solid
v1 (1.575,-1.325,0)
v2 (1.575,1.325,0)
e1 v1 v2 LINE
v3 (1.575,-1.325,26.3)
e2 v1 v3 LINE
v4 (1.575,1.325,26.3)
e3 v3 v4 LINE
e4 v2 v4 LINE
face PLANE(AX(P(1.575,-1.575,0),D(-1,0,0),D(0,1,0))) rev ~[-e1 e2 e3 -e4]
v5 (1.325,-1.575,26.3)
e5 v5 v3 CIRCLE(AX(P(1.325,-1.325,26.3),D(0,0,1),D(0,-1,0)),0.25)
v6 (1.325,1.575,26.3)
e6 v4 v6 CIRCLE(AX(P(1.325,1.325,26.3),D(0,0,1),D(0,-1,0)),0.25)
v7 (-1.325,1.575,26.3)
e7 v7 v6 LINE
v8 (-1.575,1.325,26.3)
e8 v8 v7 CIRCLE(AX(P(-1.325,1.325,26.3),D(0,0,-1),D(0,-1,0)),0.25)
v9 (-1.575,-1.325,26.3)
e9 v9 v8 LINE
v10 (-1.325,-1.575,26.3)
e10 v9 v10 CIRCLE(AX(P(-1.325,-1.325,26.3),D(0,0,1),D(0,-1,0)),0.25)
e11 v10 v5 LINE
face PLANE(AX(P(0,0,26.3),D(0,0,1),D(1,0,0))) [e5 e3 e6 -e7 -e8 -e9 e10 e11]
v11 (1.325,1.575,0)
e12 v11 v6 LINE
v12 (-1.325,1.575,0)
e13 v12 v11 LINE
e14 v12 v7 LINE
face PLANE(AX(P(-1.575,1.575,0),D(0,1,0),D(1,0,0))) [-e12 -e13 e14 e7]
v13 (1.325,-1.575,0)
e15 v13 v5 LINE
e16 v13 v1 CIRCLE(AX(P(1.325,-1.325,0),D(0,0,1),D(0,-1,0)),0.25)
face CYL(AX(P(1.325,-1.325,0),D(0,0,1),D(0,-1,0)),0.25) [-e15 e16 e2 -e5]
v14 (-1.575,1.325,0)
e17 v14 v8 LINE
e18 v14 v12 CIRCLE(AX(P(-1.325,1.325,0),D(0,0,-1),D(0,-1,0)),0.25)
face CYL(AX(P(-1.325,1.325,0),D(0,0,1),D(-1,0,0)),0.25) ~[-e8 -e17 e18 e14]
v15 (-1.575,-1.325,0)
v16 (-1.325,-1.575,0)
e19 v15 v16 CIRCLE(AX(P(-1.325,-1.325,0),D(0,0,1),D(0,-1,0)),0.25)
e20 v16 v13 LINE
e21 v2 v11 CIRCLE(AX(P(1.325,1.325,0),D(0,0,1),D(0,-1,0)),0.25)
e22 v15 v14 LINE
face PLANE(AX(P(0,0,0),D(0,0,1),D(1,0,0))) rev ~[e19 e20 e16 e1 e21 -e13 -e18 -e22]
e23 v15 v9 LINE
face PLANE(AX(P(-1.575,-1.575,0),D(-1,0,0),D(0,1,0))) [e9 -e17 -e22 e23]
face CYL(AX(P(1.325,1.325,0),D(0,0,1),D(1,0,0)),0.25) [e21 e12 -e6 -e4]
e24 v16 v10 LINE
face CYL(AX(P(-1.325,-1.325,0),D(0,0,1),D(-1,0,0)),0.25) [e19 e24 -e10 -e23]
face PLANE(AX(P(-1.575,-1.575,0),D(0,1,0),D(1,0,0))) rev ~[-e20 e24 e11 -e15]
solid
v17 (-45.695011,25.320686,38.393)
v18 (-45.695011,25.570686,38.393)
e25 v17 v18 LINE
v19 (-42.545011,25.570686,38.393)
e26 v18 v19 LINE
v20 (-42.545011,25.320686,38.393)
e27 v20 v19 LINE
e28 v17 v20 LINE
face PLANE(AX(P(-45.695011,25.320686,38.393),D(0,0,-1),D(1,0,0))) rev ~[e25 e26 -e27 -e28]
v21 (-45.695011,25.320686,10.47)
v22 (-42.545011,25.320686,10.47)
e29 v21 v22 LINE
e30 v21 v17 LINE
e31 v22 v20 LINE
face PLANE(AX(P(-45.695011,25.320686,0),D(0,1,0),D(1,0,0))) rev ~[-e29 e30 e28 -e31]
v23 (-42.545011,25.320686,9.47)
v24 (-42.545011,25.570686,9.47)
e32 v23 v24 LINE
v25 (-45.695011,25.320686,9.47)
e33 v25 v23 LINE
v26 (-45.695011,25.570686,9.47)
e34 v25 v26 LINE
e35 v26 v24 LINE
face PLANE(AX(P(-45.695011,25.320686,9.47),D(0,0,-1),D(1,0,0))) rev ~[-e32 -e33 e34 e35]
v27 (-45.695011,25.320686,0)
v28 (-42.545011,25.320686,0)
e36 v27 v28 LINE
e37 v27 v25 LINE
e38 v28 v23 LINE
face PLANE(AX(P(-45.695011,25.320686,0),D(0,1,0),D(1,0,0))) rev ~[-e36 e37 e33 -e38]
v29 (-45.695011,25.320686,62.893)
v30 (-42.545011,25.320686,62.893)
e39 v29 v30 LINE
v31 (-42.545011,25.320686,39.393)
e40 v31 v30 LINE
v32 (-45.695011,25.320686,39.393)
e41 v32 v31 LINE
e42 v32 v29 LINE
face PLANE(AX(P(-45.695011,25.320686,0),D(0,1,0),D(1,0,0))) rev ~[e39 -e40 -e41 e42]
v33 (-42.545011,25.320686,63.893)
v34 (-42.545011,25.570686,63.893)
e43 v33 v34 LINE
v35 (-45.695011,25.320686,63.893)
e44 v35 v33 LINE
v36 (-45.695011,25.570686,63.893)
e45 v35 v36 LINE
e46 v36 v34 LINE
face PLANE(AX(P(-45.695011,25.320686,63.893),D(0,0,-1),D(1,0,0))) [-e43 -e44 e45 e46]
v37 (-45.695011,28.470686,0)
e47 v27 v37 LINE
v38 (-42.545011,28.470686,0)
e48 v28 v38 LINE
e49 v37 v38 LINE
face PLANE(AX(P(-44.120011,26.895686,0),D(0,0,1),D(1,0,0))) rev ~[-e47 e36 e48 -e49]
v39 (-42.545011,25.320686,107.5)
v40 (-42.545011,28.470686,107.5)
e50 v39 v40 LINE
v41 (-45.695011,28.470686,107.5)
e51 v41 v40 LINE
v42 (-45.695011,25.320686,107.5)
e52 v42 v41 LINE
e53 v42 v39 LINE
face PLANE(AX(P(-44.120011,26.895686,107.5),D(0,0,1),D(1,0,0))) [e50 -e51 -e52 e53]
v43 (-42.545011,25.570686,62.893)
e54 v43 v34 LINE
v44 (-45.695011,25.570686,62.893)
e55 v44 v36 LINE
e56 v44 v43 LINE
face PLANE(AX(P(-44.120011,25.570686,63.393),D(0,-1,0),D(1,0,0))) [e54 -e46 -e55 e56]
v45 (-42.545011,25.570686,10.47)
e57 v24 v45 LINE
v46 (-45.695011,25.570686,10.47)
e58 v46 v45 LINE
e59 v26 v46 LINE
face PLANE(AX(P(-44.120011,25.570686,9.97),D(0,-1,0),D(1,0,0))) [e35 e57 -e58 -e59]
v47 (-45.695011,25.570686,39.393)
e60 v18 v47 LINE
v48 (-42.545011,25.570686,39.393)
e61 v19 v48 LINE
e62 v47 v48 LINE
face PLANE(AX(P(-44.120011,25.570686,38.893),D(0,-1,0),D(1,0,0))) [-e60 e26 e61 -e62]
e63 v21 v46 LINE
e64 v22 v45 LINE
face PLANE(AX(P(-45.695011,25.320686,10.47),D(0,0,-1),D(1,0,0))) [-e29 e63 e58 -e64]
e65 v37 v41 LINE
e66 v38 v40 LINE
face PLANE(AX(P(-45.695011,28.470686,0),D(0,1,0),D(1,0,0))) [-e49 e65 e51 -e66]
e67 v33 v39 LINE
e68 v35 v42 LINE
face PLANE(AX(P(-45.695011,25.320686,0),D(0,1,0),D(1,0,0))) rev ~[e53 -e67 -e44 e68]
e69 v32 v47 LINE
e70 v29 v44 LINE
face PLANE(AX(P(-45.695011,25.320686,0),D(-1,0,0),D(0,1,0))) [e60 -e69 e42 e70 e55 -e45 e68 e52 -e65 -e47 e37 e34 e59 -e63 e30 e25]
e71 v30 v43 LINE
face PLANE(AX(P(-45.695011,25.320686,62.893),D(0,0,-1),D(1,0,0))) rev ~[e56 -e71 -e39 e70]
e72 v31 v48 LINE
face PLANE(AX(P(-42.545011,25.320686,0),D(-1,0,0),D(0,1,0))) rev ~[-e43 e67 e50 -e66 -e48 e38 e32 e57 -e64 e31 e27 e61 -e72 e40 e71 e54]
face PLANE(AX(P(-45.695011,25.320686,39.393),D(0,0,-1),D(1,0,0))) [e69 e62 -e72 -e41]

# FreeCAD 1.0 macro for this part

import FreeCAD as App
import Part
import Sketcher

V = App.Vector


def edges_at(feature, points):
    """Names of the edges that pass closest to the given points."""
    edges = feature.Shape.Edges
    near = lambda p: min(range(len(edges)), key=lambda i: edges[i].distToShape(Part.Vertex(*p))[0])
    return sorted({f"Edge{near(p) + 1}" for p in points})


def add_polygon(sketch, points):
    """Adds a closed chain of lines whose ends are joined by coincident constraints."""
    first, n = sketch.GeometryCount, len(points)
    for a, b in zip(points, points[1:] + points[:1]):
        sketch.addGeometry(Part.LineSegment(App.Vector(*a, 0), App.Vector(*b, 0)), False)
    for i in range(n):
        sketch.addConstraint(Sketcher.Constraint("Coincident", first + i, 2, first + (i + 1) % n, 1))

doc = App.newDocument("Part")
body = doc.addObject("PartDesign::Body", "Body")

sketch1 = body.newObject("Sketcher::SketchObject", "Sketch")
sketch1.AttachmentSupport = (doc.getObject("XY_Plane"), [""])
sketch1.MapMode = "FlatFace"
add_polygon(sketch1, [(-1.6, 1.6), (-1.6, -1.6), (1.6, -1.6), (1.6, 1.6)])
sketch1.addConstraint(Sketcher.Constraint("Vertical", 0))
sketch1.addConstraint(Sketcher.Constraint("Horizontal", 1))
sketch1.addConstraint(Sketcher.Constraint("Vertical", 2))
sketch1.addConstraint(Sketcher.Constraint("Horizontal", 3))
sketch1.addConstraint(Sketcher.Constraint("Symmetric", 0, 2, 2, 2, -1, 1))
sketch1.addConstraint(Sketcher.Constraint("Equal", 3, 0))
sketch1.addConstraint(Sketcher.Constraint("DistanceX", 1, 1, 1, 2, 3.15))
pad1 = body.newObject("PartDesign::Pad", "Pad")
pad1.Profile = sketch1
pad1.Length = 26.3
doc.recompute()

fillet = body.newObject("PartDesign::Fillet", "Fillet")
fillet.Base = (pad1, edges_at(pad1, [
    (-1.575, -1.575, 13.15),
    (1.575, -1.575, 13.15),
    (1.575, 1.575, 13.15),
    (-1.575, 1.575, 13.15),
]))
fillet.Radius = 0.25
body2 = doc.addObject("PartDesign::Body", "Body001")

sketch2 = body2.newObject("Sketcher::SketchObject", "Sketch001")
sketch2.AttachmentSupport = (doc.getObject("XY_Plane001"), [""])
sketch2.MapMode = "FlatFace"
add_polygon(sketch2, [(-45.7, 28.5), (-45.7, 25.3), (-42.5, 25.3), (-42.5, 28.5)])
sketch2.addConstraint(Sketcher.Constraint("Vertical", 0))
sketch2.addConstraint(Sketcher.Constraint("Horizontal", 1))
sketch2.addConstraint(Sketcher.Constraint("Vertical", 2))
sketch2.addConstraint(Sketcher.Constraint("Horizontal", 3))
sketch2.addConstraint(Sketcher.Constraint("Equal", 3, 0))
sketch2.addConstraint(Sketcher.Constraint("DistanceX", 1, 1, 1, 2, 3.15))
sketch2.addConstraint(Sketcher.Constraint("DistanceX", 0, 2, -1, 1, 45.695011))
sketch2.addConstraint(Sketcher.Constraint("DistanceY", -1, 1, 0, 2, 25.320686))
pad2 = body2.newObject("PartDesign::Pad", "Pad001")
pad2.Profile = sketch2
pad2.Length = 107.5

sketch3 = body2.newObject("Sketcher::SketchObject", "Sketch002")
sketch3.AttachmentSupport = (doc.getObject("XZ_Plane001"), [""])
sketch3.MapMode = "FlatFace"
sketch3.AttachmentOffset = App.Placement(V(0, 0, -25.320686), App.Rotation())
add_polygon(sketch3, [(-45.7, 10.5), (-45.7, 9.5), (-42.5, 9.5), (-42.5, 10.5)])
add_polygon(sketch3, [(-45.7, 39.4), (-45.7, 38.4), (-42.5, 38.4), (-42.5, 39.4)])
add_polygon(sketch3, [(-45.7, 63.9), (-45.7, 62.9), (-42.5, 62.9), (-42.5, 63.9)])
sketch3.addConstraint(Sketcher.Constraint("Vertical", 0))
sketch3.addConstraint(Sketcher.Constraint("Horizontal", 1))
sketch3.addConstraint(Sketcher.Constraint("Vertical", 2))
sketch3.addConstraint(Sketcher.Constraint("Horizontal", 3))
sketch3.addConstraint(Sketcher.Constraint("Vertical", 4))
sketch3.addConstraint(Sketcher.Constraint("Horizontal", 5))
sketch3.addConstraint(Sketcher.Constraint("Vertical", 6))
sketch3.addConstraint(Sketcher.Constraint("Horizontal", 7))
sketch3.addConstraint(Sketcher.Constraint("Vertical", 8))
sketch3.addConstraint(Sketcher.Constraint("Horizontal", 9))
sketch3.addConstraint(Sketcher.Constraint("Vertical", 10))
sketch3.addConstraint(Sketcher.Constraint("Horizontal", 11))
sketch3.addConstraint(Sketcher.Constraint("Vertical", 3, 2, 4, 2))
sketch3.addConstraint(Sketcher.Constraint("Vertical", 2, 2, 5, 2))
sketch3.addConstraint(Sketcher.Constraint("Vertical", 7, 2, 8, 2))
sketch3.addConstraint(Sketcher.Constraint("Vertical", 6, 2, 9, 2))
sketch3.addConstraint(Sketcher.Constraint("Equal", 2, 4))
sketch3.addConstraint(Sketcher.Constraint("Equal", 6, 8))
sketch3.addConstraint(Sketcher.Constraint("DistanceY", 0, 2, 0, 1, 1.0))
sketch3.addConstraint(Sketcher.Constraint("DistanceX", 1, 1, 1, 2, 3.15))
sketch3.addConstraint(Sketcher.Constraint("DistanceY", 7, 2, 8, 2, 23.5))
sketch3.addConstraint(Sketcher.Constraint("DistanceY", -1, 1, 0, 2, 9.47))
sketch3.addConstraint(Sketcher.Constraint("DistanceY", -1, 1, 4, 2, 38.393))
sketch3.addConstraint(Sketcher.Constraint("DistanceX", 0, 2, -1, 1, 45.695011))
pocket1 = body2.newObject("PartDesign::Pocket", "Pocket")
pocket1.Profile = sketch3
pocket1.Length = 0.25

doc.recompute()
